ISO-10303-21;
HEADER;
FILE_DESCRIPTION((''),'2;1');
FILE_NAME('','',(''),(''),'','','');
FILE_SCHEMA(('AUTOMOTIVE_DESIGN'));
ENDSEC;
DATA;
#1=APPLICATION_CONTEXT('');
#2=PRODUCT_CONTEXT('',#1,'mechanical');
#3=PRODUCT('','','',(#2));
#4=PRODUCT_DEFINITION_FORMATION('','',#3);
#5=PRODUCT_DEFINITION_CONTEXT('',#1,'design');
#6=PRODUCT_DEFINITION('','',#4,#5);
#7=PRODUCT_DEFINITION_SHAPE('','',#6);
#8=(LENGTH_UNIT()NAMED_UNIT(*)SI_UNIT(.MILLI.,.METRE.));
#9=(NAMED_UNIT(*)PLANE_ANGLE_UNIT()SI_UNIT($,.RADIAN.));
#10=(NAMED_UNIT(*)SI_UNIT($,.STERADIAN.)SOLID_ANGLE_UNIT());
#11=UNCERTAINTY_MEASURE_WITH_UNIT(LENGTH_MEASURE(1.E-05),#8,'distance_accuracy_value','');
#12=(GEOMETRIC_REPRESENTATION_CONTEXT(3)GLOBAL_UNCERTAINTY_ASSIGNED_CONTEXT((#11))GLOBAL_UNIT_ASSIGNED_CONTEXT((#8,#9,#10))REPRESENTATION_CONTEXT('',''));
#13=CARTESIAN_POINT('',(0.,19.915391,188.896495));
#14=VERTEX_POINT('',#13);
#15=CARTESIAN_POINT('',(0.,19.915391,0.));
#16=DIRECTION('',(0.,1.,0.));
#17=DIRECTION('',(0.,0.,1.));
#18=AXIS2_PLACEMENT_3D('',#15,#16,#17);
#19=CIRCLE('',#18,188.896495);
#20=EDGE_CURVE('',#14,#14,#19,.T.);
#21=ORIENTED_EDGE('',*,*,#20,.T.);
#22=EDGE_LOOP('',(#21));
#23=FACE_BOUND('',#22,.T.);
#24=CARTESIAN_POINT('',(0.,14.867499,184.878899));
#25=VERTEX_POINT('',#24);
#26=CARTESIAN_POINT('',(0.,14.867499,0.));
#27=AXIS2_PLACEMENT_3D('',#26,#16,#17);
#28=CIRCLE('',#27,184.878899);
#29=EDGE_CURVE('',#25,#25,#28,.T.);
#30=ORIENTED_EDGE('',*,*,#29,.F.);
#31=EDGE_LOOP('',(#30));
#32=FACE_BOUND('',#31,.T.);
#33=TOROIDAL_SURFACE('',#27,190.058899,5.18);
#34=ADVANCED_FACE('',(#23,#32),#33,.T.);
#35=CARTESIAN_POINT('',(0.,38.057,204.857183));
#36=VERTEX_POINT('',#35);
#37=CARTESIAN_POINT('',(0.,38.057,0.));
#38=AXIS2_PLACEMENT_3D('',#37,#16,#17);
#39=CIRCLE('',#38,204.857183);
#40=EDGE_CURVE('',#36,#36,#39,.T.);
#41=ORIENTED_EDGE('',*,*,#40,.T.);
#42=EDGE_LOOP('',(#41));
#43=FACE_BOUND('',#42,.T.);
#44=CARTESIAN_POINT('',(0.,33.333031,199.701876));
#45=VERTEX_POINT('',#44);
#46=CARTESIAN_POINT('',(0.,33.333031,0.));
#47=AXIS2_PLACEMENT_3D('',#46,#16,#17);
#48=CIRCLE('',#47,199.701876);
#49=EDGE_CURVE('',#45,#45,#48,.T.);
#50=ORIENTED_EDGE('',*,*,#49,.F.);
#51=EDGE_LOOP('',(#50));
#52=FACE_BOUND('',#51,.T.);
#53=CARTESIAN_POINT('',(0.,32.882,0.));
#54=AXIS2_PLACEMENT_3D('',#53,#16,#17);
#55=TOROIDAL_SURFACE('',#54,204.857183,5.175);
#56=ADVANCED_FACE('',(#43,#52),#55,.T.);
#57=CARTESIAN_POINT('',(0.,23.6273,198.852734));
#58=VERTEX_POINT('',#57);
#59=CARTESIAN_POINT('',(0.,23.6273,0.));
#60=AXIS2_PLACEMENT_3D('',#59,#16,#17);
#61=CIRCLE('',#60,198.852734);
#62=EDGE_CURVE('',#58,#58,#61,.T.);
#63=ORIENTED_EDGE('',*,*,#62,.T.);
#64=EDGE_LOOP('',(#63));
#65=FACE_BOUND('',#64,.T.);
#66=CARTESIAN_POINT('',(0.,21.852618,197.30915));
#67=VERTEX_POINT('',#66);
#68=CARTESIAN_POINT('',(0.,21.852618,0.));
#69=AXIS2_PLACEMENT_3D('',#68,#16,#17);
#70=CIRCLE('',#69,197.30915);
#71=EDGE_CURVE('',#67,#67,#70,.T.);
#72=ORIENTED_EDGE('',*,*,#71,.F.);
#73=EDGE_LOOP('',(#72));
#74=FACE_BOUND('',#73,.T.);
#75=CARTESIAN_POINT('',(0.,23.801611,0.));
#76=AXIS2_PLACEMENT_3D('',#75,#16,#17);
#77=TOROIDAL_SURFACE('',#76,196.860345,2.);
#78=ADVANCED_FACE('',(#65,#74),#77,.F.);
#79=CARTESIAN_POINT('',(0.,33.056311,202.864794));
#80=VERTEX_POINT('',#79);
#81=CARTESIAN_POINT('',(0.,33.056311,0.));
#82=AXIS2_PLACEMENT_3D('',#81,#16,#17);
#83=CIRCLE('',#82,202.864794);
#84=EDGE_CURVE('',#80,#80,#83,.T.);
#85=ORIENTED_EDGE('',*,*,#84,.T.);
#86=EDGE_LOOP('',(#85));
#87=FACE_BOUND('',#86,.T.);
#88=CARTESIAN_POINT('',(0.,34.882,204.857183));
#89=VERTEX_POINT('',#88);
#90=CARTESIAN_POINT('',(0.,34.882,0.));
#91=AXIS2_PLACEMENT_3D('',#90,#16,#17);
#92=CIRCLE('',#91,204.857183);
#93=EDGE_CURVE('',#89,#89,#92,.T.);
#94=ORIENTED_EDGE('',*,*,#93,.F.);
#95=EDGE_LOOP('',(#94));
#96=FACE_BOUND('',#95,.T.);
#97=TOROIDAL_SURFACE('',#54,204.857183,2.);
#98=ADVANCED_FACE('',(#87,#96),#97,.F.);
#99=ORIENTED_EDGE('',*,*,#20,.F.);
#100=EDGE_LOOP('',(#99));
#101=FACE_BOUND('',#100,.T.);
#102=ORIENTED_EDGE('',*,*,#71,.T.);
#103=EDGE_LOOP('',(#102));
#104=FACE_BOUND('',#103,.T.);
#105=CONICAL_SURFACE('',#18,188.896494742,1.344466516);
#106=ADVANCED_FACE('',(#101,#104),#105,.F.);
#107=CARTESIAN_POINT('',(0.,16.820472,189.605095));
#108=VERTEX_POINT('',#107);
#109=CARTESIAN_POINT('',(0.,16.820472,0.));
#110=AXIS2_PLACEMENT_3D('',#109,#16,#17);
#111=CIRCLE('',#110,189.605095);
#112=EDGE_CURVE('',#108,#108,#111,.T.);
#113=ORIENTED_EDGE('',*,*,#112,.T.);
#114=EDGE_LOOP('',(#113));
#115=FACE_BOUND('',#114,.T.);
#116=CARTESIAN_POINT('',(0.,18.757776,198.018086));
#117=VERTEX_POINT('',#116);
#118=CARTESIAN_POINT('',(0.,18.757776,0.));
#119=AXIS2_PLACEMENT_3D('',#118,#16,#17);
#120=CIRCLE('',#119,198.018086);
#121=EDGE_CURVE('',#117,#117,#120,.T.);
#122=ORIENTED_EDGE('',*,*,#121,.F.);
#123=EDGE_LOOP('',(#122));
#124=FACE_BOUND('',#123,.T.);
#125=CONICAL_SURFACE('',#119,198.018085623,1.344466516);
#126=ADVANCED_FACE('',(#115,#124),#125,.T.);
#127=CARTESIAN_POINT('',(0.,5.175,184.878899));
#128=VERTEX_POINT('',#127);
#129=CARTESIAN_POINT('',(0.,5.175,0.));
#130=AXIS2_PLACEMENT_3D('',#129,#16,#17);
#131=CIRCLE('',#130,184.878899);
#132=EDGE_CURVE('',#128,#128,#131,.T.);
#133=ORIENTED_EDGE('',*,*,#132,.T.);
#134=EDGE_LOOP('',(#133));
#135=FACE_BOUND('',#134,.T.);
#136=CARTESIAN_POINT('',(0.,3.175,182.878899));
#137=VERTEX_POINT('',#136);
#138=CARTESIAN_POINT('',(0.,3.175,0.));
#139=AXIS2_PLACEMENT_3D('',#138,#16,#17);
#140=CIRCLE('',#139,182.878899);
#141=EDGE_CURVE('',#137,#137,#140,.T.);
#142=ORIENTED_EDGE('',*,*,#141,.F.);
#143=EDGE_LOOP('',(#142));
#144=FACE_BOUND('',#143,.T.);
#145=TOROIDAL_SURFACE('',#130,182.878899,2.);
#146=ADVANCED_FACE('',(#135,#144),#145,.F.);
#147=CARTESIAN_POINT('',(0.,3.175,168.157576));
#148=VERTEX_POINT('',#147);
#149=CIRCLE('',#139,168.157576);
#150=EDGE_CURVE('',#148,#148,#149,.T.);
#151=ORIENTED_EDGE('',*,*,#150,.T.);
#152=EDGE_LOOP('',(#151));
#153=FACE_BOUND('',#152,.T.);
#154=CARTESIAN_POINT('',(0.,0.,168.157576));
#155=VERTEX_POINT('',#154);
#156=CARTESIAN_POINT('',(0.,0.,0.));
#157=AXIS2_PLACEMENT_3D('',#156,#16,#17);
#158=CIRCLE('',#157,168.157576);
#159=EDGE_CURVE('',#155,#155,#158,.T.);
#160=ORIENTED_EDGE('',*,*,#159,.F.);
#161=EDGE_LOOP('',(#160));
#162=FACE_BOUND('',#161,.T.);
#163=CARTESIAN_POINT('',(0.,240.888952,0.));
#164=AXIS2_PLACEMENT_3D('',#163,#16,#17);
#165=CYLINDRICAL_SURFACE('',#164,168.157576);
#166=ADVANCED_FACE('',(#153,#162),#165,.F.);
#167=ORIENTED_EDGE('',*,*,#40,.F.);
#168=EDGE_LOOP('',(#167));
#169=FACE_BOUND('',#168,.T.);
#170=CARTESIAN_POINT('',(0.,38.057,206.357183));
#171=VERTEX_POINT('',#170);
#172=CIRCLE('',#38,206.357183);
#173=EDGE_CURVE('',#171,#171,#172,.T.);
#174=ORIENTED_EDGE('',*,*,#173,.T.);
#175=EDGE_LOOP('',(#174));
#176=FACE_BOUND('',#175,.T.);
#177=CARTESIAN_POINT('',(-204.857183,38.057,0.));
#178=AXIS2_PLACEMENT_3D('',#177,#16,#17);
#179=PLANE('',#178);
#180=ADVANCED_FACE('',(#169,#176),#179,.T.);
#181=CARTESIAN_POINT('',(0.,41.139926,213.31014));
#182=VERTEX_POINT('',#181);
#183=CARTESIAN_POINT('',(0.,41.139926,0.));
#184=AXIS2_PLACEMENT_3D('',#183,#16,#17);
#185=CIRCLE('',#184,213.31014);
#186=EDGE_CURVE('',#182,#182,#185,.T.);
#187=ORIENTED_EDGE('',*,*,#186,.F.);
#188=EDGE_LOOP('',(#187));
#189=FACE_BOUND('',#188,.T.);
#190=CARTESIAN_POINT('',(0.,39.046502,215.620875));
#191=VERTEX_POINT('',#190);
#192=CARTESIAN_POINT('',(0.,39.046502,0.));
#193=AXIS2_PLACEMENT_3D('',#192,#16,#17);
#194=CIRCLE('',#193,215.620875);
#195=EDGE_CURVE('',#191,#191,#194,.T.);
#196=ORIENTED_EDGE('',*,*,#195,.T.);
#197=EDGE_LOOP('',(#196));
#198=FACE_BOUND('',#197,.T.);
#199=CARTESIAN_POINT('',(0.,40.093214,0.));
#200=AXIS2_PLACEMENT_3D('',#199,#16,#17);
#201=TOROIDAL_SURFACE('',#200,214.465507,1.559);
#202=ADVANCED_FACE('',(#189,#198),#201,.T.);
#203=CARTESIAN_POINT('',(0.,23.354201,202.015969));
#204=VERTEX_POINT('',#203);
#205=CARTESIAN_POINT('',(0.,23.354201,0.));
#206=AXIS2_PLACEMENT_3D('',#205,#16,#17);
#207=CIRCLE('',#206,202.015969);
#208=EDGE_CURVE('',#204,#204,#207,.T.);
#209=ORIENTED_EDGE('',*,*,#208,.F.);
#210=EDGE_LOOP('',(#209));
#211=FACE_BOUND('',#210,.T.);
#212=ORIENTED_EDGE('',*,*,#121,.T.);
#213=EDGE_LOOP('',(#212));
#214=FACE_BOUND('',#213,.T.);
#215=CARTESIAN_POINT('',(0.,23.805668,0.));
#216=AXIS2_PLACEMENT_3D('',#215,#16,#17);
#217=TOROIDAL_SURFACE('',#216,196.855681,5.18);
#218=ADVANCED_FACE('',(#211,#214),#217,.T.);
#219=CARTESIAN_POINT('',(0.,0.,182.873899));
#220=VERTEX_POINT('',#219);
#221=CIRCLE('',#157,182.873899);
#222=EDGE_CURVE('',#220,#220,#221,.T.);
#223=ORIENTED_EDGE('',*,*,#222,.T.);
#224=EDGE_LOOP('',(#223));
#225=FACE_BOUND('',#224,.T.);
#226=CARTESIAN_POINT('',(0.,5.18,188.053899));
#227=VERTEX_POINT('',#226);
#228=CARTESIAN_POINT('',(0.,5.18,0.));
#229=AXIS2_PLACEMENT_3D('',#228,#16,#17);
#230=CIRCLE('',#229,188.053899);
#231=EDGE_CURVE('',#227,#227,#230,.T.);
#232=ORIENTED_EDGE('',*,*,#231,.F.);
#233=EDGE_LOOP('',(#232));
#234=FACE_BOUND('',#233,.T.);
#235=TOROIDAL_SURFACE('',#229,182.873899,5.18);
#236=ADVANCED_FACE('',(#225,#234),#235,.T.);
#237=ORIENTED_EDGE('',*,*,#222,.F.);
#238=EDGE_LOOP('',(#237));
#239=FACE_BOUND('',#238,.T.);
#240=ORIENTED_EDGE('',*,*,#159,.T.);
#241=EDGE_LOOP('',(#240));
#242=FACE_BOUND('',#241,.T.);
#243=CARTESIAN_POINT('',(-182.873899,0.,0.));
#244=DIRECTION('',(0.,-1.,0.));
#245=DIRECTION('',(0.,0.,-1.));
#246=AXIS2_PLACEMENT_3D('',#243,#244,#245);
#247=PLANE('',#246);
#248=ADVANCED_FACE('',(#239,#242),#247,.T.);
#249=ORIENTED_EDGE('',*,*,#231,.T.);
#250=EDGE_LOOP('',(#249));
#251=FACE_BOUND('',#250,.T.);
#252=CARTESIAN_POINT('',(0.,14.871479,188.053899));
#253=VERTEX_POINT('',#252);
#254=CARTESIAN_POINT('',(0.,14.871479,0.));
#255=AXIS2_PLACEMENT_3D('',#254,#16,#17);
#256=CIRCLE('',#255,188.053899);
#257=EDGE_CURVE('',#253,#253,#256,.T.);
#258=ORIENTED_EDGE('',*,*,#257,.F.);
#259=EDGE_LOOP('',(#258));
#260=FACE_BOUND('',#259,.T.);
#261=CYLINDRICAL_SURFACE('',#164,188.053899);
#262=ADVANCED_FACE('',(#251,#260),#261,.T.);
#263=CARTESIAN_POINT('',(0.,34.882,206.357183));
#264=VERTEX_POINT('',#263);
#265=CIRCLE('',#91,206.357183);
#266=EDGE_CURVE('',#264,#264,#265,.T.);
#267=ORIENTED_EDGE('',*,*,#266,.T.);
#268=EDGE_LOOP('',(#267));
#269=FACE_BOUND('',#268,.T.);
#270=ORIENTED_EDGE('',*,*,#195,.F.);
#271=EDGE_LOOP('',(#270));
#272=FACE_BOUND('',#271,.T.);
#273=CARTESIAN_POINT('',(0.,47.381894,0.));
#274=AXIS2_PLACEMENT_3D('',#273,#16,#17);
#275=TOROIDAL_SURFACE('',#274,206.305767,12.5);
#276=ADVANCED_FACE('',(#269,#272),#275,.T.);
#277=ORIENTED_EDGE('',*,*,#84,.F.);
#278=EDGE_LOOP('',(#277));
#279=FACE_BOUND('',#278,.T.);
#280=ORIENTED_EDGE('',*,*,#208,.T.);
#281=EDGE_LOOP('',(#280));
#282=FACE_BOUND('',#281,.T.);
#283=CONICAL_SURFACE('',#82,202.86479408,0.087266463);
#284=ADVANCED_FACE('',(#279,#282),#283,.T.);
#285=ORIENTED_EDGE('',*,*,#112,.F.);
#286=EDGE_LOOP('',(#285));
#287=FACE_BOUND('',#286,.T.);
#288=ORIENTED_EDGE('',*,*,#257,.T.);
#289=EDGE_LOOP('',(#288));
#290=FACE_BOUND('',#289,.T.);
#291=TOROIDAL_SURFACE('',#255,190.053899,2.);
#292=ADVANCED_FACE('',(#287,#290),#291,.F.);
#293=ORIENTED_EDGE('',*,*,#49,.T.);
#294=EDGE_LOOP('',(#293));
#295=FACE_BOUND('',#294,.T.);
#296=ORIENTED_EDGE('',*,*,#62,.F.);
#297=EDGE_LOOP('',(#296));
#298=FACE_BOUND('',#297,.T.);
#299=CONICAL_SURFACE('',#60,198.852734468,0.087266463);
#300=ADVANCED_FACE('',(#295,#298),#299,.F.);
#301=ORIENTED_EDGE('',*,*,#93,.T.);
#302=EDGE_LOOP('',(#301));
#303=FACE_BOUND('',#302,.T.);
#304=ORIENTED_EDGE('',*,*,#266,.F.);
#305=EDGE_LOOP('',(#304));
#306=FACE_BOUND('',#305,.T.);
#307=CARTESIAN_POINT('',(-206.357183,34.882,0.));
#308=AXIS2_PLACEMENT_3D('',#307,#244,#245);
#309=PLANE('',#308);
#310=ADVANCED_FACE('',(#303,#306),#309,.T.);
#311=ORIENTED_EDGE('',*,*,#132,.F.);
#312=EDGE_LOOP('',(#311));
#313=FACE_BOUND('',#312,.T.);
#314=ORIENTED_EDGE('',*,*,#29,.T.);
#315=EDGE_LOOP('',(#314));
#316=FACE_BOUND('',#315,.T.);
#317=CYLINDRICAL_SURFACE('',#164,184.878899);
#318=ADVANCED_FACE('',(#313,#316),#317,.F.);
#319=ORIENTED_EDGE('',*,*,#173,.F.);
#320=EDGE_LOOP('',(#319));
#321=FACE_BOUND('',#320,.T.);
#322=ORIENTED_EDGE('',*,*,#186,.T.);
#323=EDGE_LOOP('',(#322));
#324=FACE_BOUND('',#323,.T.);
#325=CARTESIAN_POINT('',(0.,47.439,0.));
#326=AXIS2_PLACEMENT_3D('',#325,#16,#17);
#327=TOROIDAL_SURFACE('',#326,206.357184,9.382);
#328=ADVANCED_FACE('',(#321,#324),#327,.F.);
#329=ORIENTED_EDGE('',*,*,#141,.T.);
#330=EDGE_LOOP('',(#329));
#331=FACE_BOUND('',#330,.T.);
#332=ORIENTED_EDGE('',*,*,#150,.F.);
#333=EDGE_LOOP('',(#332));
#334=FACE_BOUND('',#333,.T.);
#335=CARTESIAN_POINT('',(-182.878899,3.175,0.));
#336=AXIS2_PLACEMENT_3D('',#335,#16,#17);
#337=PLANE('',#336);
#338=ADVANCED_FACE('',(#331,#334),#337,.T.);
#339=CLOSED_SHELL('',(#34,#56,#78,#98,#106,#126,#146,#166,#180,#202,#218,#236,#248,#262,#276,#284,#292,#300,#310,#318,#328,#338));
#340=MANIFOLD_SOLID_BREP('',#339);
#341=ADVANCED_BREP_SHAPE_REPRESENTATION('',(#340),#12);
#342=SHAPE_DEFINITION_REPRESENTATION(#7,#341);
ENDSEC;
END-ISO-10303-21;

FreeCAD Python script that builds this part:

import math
import FreeCAD as App
import Part
import Sketcher
Q = App.Units.Quantity

doc = App.newDocument("Part")
body = doc.addObject("PartDesign::Body", "Body")

sketch1 = doc.addObject("Sketcher::SketchObject", "Sketch")
body.addObject(sketch1)
sketch1.AttachmentSupport = (doc.XY_Plane, [""])
sketch1.MapMode = "FlatFace"
sketch1.addGeometry(Part.LineSegment(App.Vector(-202.9, 33.1, 0), App.Vector(-202, 23.4, 0)), False)
sketch1.addGeometry(Part.ArcOfCircle(Part.Circle(App.Vector(-196.9, 23.8, 0), App.Vector(0, 0, 1), 5.2), math.radians(-175), math.radians(-103)), False)
sketch1.addGeometry(Part.LineSegment(App.Vector(-198, 18.8, 0), App.Vector(-189.6, 16.8, 0)), False)
sketch1.addGeometry(Part.ArcOfCircle(Part.Circle(App.Vector(-190.1, 14.9, 0), App.Vector(0, 0, 1), 2), math.radians(0), math.radians(77)), False)
sketch1.addGeometry(Part.LineSegment(App.Vector(-188.1, 14.9, 0), App.Vector(-188.1, 5.2, 0)), False)
sketch1.addGeometry(Part.ArcOfCircle(Part.Circle(App.Vector(-182.9, 5.2, 0), App.Vector(0, 0, 1), 5.2), math.radians(180), math.radians(270)), False)
sketch1.addGeometry(Part.LineSegment(App.Vector(-182.9, 0, 0), App.Vector(-168.2, 0, 0)), False)
sketch1.addGeometry(Part.LineSegment(App.Vector(-168.2, 0, 0), App.Vector(-168.2, 3.2, 0)), False)
sketch1.addGeometry(Part.LineSegment(App.Vector(-168.2, 3.2, 0), App.Vector(-182.9, 3.2, 0)), False)
sketch1.addGeometry(Part.ArcOfCircle(Part.Circle(App.Vector(-182.9, 5.2, 0), App.Vector(0, 0, 1), 2), math.radians(-180), math.radians(-90)), False)
sketch1.addGeometry(Part.LineSegment(App.Vector(-184.9, 5.2, 0), App.Vector(-184.9, 14.9, 0)), False)
sketch1.addGeometry(Part.ArcOfCircle(Part.Circle(App.Vector(-190.1, 14.9, 0), App.Vector(0, 0, 1), 5.2), math.radians(0), math.radians(77)), False)
sketch1.addGeometry(Part.LineSegment(App.Vector(-188.9, 19.9, 0), App.Vector(-197.3, 21.9, 0)), False)
sketch1.addGeometry(Part.ArcOfCircle(Part.Circle(App.Vector(-196.9, 23.8, 0), App.Vector(0, 0, 1), 2), math.radians(-175), math.radians(-103)), False)
sketch1.addGeometry(Part.LineSegment(App.Vector(-198.9, 23.6, 0), App.Vector(-199.7, 33.3, 0)), False)
sketch1.addGeometry(Part.ArcOfCircle(Part.Circle(App.Vector(-204.9, 32.9, 0), App.Vector(0, 0, 1), 5.2), math.radians(5), math.radians(90)), False)
sketch1.addGeometry(Part.LineSegment(App.Vector(-204.9, 38.1, 0), App.Vector(-206.4, 38.1, 0)), False)
sketch1.addGeometry(Part.ArcOfCircle(Part.Circle(App.Vector(-206.4, 47.4, 0), App.Vector(0, 0, 1), 9.4), math.radians(-138), math.radians(-90)), False)
sketch1.addGeometry(Part.ArcOfCircle(Part.Circle(App.Vector(-214.5, 40.1, 0), App.Vector(0, 0, 1), 1.6), math.radians(42), math.radians(222)), False)
sketch1.addGeometry(Part.ArcOfCircle(Part.Circle(App.Vector(-206.3, 47.4, 0), App.Vector(0, 0, 1), 12.5), math.radians(-138), math.radians(-90)), False)
sketch1.addGeometry(Part.LineSegment(App.Vector(-206.4, 34.9, 0), App.Vector(-204.9, 34.9, 0)), False)
sketch1.addGeometry(Part.ArcOfCircle(Part.Circle(App.Vector(-204.9, 32.9, 0), App.Vector(0, 0, 1), 2), math.radians(5), math.radians(90)), False)
sketch1.addConstraint(Sketcher.Constraint("Tangent", 0, 2, 1, 1))
sketch1.addConstraint(Sketcher.Constraint("Tangent", 1, 2, 2, 1))
sketch1.addConstraint(Sketcher.Constraint("Tangent", 2, 2, 3, 2))
sketch1.addConstraint(Sketcher.Constraint("Tangent", 3, 1, 4, 1))
sketch1.addConstraint(Sketcher.Constraint("Tangent", 4, 2, 5, 1))
sketch1.addConstraint(Sketcher.Constraint("Tangent", 5, 2, 6, 1))
sketch1.addConstraint(Sketcher.Constraint("Coincident", 6, 2, 7, 1))
sketch1.addConstraint(Sketcher.Constraint("Coincident", 7, 2, 8, 1))
sketch1.addConstraint(Sketcher.Constraint("Tangent", 8, 2, 9, 2))
sketch1.addConstraint(Sketcher.Constraint("Tangent", 9, 1, 10, 1))
sketch1.addConstraint(Sketcher.Constraint("Tangent", 10, 2, 11, 1))
sketch1.addConstraint(Sketcher.Constraint("Tangent", 11, 2, 12, 1))
sketch1.addConstraint(Sketcher.Constraint("Tangent", 12, 2, 13, 2))
sketch1.addConstraint(Sketcher.Constraint("Tangent", 13, 1, 14, 1))
sketch1.addConstraint(Sketcher.Constraint("Tangent", 14, 2, 15, 1))
sketch1.addConstraint(Sketcher.Constraint("Tangent", 15, 2, 16, 1))
sketch1.addConstraint(Sketcher.Constraint("Tangent", 16, 2, 17, 2))
sketch1.addConstraint(Sketcher.Constraint("Tangent", 17, 1, 18, 1))
sketch1.addConstraint(Sketcher.Constraint("Coincident", 18, 2, 19, 1))
sketch1.addConstraint(Sketcher.Constraint("Coincident", 19, 2, 20, 1))
sketch1.addConstraint(Sketcher.Constraint("Tangent", 20, 2, 21, 2))
sketch1.addConstraint(Sketcher.Constraint("Tangent", 21, 1, 0, 1))
sketch1.addConstraint(Sketcher.Constraint("Vertical", 4))
sketch1.addConstraint(Sketcher.Constraint("Horizontal", 6))
sketch1.addConstraint(Sketcher.Constraint("Vertical", 7))
sketch1.addConstraint(Sketcher.Constraint("Horizontal", 8))
sketch1.addConstraint(Sketcher.Constraint("Vertical", 10))
sketch1.addConstraint(Sketcher.Constraint("Horizontal", 16))
sketch1.addConstraint(Sketcher.Constraint("Horizontal", 20))
sketch1.addConstraint(Sketcher.Constraint("Coincident", 21, 3, 15, 3))
sketch1.addConstraint(Sketcher.Constraint("Equal", 1, 5))
sketch1.addConstraint(Sketcher.Constraint("Equal", 3, 9))
sketch1.addConstraint(Sketcher.Constraint("Equal", 5, 11))
sketch1.addConstraint(Sketcher.Constraint("Equal", 9, 13))
sketch1.addConstraint(Sketcher.Constraint("Equal", 13, 21))
sketch1.addConstraint(Sketcher.Constraint("PointOnObject", 5, 2, -1))
sketch1.addConstraint(Sketcher.Constraint("Parallel", 2, 12))
sketch1.addConstraint(Sketcher.Constraint("Parallel", 0, 14))
sketch1.addConstraint(Sketcher.Constraint("Vertical", 16, 2, 19, 2))
sketch1.addConstraint(Sketcher.Constraint("Radius", 3, Q("2 mm")))
sketch1.addConstraint(Sketcher.Constraint("Radius", 19, Q("12.5 mm")))
sketch1.addConstraint(Sketcher.Constraint("Angle", 0, Q("-85 deg")))
sketch1.addConstraint(Sketcher.Constraint("Radius", 1, Q("5.18 mm")))
sketch1.addConstraint(Sketcher.Constraint("DistanceX", 16, 2, 16, 1, Q("1.5 mm")))
sketch1.addConstraint(Sketcher.Constraint("Radius", 15, Q("5.175 mm")))
sketch1.addConstraint(Sketcher.Constraint("Radius", 17, Q("9.382 mm")))
sketch1.addConstraint(Sketcher.Constraint("Radius", 18, Q("1.559 mm")))
sketch1.addConstraint(Sketcher.Constraint("DistanceY", 7, 1, 7, 2, Q("3.175 mm")))
sketch1.addConstraint(Sketcher.Constraint("DistanceY", 10, 1, 10, 2, Q("9.692499 mm")))
sketch1.addConstraint(Sketcher.Constraint("DistanceY", -1, 1, 15, 3, Q("32.882 mm")))
sketch1.addConstraint(Sketcher.Constraint("DistanceX", 9, 3, 5, 3, Q("0.005 mm")))
sketch1.addConstraint(Sketcher.Constraint("DistanceY", 4, 2, 4, 1, Q("9.691479 mm")))
sketch1.addConstraint(Sketcher.Constraint("DistanceX", 3, 3, -1, 1, Q("190.053899 mm")))
sketch1.addConstraint(Sketcher.Constraint("DistanceY", -1, 1, 0, 2, Q("23.354201 mm")))
sketch1.addConstraint(Sketcher.Constraint("DistanceY", -1, 1, 18, 2, Q("39.046502 mm")))
sketch1.addConstraint(Sketcher.Constraint("DistanceX", 2, 2, 11, 2, Q("0.7086 mm")))
sketch1.addConstraint(Sketcher.Constraint("DistanceX", 6, 1, 6, 2, Q("14.716324 mm")))
sketch1.addConstraint(Sketcher.Constraint("DistanceX", 17, 1, -1, 1, Q("213.31014 mm")))
revolution = doc.addObject("PartDesign::Revolution", "Revolution")
body.addObject(revolution)
revolution.Profile = sketch1
revolution.ReferenceAxis = (sketch1, ["V_Axis"])
revolution.Angle = 360

doc.recompute()
